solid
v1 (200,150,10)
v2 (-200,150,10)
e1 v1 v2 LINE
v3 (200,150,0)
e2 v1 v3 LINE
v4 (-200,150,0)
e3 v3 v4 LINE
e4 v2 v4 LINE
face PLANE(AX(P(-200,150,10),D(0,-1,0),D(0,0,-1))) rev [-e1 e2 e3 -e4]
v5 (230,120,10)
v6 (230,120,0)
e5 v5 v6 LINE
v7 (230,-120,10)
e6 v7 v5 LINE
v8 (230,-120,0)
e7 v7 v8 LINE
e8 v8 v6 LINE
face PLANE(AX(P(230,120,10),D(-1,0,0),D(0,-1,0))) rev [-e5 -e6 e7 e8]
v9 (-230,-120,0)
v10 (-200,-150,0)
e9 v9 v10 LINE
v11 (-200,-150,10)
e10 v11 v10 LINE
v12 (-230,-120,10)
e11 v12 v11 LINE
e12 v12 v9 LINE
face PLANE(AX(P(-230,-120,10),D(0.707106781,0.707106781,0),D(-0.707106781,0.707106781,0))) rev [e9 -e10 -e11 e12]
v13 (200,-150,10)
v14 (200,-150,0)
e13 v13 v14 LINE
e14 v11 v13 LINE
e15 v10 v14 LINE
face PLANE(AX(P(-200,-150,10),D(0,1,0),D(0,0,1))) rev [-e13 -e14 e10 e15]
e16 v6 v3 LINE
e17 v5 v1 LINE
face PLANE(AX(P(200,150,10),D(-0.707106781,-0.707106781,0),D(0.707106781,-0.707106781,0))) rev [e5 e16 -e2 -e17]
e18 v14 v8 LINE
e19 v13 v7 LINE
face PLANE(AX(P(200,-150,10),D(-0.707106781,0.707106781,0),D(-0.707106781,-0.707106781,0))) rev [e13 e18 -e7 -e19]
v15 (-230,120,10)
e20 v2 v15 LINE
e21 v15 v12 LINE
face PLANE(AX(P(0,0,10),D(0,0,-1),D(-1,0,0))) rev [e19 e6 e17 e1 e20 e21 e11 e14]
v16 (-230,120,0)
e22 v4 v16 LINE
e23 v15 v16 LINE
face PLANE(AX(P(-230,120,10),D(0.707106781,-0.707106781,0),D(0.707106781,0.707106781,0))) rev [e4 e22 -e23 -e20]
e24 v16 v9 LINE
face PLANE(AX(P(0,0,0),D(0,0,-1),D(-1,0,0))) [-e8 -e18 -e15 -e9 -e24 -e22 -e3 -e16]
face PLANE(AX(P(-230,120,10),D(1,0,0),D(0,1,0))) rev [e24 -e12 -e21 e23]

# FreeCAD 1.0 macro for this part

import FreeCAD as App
import Part
import Sketcher

V = App.Vector

doc = App.newDocument("Part")
body = doc.addObject("PartDesign::Body", "Body")

# Sketch on XY plane
sketch1 = body.newObject("Sketcher::SketchObject", "Sketch")
sketch1.AttachmentSupport = (doc.getObject("XY_Plane"), [""])
sketch1.MapMode = "FlatFace"
sketch1.addGeometry([
    Part.LineSegment(V(-200, 150, 0), V(-230, 120, 0)),  # 0
    Part.LineSegment(V(-230, 120, 0), V(-230, -120, 0)),  # 1
    Part.LineSegment(V(-230, -120, 0), V(-200, -150, 0)),  # 2
    Part.LineSegment(V(-200, -150, 0), V(200, -150, 0)),  # 3
    Part.LineSegment(V(200, -150, 0), V(230, -120, 0)),  # 4
    Part.LineSegment(V(230, -120, 0), V(230, 120, 0)),  # 5
    Part.LineSegment(V(230, 120, 0), V(200, 150, 0)),  # 6
    Part.LineSegment(V(200, 150, 0), V(-200, 150, 0)),  # 7
], False)
sketch1.addConstraint([
    Sketcher.Constraint("Coincident", 0, 2, 1, 1),
    Sketcher.Constraint("Coincident", 1, 2, 2, 1),
    Sketcher.Constraint("Coincident", 2, 2, 3, 1),
    Sketcher.Constraint("Coincident", 3, 2, 4, 1),
    Sketcher.Constraint("Coincident", 4, 2, 5, 1),
    Sketcher.Constraint("Coincident", 5, 2, 6, 1),
    Sketcher.Constraint("Coincident", 6, 2, 7, 1),
    Sketcher.Constraint("Coincident", 7, 2, 0, 1),
    Sketcher.Constraint("Vertical", 1),
    Sketcher.Constraint("Horizontal", 3),
    Sketcher.Constraint("Vertical", 5),
    Sketcher.Constraint("Horizontal", 7),
    Sketcher.Constraint("Symmetric", 0, 2, 4, 2, -1, 1),
    Sketcher.Constraint("Symmetric", 2, 2, 6, 2, -1, 1),
    Sketcher.Constraint("Perpendicular", 0, 2),
    Sketcher.Constraint("Perpendicular", 2, 4),
    Sketcher.Constraint("Perpendicular", 4, 6),
    Sketcher.Constraint("Horizontal", 1, 2, 4, 2),
    Sketcher.Constraint("Vertical", 3, 2, 6, 2),
    Sketcher.Constraint("DistanceX", 3, 1, 3, 2, 400.0),
    Sketcher.Constraint("DistanceY", 1, 2, 1, 1, 240.0),
    Sketcher.Constraint("DistanceX", 0, 2, -1, 1, 230.0),
])
pad1 = body.newObject("PartDesign::Pad", "Pad")
pad1.Profile = sketch1
pad1.Length = 10

doc.recompute()
